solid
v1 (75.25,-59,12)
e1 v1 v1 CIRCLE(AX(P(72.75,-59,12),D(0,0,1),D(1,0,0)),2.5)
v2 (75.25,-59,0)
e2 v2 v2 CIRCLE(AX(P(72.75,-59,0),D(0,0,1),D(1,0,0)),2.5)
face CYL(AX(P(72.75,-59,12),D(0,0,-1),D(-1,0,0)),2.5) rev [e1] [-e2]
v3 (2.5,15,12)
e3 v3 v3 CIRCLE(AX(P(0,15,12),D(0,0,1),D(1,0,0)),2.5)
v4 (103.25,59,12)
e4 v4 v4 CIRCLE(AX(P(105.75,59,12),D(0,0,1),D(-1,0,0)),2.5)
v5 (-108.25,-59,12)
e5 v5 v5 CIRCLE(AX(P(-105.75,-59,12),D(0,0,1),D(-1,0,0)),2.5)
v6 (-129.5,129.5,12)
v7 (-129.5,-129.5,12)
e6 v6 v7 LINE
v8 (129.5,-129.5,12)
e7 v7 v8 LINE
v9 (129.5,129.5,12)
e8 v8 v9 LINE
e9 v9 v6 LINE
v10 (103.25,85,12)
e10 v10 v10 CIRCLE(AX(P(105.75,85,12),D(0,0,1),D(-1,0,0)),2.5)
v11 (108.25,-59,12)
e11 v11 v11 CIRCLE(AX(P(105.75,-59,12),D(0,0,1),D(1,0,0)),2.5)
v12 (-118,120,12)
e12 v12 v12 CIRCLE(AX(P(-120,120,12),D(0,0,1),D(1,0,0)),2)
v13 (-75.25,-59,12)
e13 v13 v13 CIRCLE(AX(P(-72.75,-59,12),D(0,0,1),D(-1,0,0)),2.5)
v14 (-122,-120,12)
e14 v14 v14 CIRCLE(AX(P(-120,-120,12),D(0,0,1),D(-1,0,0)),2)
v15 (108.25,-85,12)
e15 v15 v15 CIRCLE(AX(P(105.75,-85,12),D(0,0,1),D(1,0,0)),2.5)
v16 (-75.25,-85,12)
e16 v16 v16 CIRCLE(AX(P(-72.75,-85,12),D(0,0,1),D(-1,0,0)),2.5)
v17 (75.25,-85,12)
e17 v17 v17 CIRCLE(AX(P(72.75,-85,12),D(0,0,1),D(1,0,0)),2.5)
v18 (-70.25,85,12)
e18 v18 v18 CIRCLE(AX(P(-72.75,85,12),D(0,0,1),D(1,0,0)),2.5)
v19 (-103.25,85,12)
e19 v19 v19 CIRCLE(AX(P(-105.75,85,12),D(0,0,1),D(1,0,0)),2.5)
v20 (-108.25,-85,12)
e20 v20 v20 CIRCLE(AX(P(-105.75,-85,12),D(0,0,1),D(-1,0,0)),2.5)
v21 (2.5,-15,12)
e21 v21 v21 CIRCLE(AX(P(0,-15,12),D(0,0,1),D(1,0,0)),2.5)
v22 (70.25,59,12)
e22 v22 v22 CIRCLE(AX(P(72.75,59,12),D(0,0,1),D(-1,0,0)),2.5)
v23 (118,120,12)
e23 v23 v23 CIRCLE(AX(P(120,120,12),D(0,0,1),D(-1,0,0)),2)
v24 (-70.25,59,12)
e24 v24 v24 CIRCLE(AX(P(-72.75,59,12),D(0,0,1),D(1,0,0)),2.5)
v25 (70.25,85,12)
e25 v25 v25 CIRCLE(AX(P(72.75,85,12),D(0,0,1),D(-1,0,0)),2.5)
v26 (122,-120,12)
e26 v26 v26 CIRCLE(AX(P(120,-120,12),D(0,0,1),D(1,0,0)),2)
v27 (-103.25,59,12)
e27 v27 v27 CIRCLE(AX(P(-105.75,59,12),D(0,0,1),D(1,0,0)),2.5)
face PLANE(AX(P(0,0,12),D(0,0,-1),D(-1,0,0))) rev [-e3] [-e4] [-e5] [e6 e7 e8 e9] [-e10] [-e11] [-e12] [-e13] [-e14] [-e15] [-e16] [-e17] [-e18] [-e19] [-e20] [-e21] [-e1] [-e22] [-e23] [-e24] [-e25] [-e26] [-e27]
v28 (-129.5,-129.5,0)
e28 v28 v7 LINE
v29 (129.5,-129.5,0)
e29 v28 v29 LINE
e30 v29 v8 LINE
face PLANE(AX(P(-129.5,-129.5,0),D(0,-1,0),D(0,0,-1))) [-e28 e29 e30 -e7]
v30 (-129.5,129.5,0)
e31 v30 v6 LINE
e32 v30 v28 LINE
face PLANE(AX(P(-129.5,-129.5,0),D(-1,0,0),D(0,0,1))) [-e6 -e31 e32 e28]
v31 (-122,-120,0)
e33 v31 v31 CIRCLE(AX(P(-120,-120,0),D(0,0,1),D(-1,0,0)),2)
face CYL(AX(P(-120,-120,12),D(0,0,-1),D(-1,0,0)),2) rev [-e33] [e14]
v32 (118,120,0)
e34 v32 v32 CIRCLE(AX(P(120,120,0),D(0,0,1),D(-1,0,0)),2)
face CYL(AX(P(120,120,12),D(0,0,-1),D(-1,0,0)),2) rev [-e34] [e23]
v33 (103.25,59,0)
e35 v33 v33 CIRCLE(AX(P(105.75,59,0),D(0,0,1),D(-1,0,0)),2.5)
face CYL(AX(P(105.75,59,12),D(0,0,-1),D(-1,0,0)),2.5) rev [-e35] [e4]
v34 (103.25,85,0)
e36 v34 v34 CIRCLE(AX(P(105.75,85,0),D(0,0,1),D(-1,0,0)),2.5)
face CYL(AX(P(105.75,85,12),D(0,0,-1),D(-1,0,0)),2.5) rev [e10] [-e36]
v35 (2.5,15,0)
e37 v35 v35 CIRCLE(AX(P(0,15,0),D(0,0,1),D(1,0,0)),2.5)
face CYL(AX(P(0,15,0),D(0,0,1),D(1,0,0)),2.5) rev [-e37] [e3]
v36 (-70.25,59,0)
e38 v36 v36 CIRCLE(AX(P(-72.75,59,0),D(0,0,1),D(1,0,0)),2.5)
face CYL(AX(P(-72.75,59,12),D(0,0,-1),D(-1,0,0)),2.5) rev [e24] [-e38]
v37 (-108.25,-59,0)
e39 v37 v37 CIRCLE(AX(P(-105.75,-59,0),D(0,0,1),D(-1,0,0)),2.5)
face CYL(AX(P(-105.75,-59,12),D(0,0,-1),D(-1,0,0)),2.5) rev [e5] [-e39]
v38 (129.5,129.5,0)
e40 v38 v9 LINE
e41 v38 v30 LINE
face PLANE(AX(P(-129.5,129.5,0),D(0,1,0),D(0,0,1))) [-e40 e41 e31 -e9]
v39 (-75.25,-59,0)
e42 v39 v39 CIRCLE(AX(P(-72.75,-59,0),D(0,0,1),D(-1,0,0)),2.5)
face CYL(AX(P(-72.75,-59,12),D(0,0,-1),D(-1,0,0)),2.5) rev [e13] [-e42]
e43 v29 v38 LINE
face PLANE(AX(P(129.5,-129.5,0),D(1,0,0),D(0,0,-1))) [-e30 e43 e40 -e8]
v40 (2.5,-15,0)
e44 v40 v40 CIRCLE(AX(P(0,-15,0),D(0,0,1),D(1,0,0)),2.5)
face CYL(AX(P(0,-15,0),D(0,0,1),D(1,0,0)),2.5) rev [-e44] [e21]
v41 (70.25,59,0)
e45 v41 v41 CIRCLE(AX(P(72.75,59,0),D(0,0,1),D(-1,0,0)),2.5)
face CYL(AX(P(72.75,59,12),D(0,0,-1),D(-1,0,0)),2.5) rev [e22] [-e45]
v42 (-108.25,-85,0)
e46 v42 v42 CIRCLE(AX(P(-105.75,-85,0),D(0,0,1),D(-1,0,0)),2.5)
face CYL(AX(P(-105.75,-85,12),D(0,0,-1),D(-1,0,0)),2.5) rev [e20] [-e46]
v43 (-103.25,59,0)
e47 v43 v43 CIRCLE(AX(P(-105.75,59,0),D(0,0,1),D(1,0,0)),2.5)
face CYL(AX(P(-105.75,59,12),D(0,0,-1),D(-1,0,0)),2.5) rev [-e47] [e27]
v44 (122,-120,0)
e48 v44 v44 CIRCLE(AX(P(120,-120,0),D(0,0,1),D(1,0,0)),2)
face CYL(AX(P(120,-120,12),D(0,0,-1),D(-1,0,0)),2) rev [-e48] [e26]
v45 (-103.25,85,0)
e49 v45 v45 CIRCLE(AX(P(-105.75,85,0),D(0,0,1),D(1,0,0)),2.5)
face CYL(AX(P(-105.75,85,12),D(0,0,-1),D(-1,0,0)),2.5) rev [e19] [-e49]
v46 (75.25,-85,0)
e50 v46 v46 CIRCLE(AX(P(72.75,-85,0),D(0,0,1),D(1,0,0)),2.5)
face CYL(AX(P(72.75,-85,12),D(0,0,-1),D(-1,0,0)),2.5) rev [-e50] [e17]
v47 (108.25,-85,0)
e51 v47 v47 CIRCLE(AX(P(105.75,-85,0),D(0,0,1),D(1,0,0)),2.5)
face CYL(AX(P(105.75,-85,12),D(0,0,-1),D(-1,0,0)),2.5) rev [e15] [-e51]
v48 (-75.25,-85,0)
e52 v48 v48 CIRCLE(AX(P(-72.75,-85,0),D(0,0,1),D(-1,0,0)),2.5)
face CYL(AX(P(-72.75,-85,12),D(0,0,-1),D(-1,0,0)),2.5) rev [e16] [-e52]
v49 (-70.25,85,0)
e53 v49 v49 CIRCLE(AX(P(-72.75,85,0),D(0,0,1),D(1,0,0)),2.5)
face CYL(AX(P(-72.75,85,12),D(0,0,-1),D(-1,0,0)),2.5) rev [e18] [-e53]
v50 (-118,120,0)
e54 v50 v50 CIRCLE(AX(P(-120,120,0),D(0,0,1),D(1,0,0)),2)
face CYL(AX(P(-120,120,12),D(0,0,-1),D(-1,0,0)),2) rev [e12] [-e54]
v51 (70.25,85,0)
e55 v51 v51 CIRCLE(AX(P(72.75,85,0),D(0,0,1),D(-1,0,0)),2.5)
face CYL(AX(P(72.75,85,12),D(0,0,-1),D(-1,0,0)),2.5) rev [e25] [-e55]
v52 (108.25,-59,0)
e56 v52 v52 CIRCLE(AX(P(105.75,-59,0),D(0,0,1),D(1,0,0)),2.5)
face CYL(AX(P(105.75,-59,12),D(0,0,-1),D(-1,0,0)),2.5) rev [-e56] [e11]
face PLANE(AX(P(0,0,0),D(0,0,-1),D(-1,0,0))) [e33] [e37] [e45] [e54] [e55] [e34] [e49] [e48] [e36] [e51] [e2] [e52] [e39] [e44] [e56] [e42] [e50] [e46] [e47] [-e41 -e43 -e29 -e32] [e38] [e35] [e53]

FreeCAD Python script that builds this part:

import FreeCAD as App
import Part
import Sketcher
from FreeCAD import Vector
Q = App.Units.Quantity

doc = App.newDocument("Part")
body = doc.addObject("PartDesign::Body", "Body")

sketch1 = body.newObject("Sketcher::SketchObject", "Sketch")
sketch1.AttachmentSupport = (doc.getObject("XY_Plane"), [""])
sketch1.MapMode = "FlatFace"
sketch1.addGeometry(Part.LineSegment(Vector(-160, 160, 0), Vector(-160, -160, 0)), False)
sketch1.addGeometry(Part.LineSegment(Vector(-160, -160, 0), Vector(160, -160, 0)), False)
sketch1.addGeometry(Part.LineSegment(Vector(160, -160, 0), Vector(160, 160, 0)), False)
sketch1.addGeometry(Part.LineSegment(Vector(160, 160, 0), Vector(-160, 160, 0)), False)
sketch1.addGeometry(Part.Circle(Vector(-120, -120, 0), Vector(0, 0, 1), 2), False)
sketch1.addGeometry(Part.Circle(Vector(-105.8, -85, 0), Vector(0, 0, 1), 2.5), False)
sketch1.addGeometry(Part.Circle(Vector(-72.8, -85, 0), Vector(0, 0, 1), 2.5), False)
sketch1.addGeometry(Part.Circle(Vector(-105.8, -59, 0), Vector(0, 0, 1), 2.5), False)
sketch1.addGeometry(Part.Circle(Vector(-72.8, -59, 0), Vector(0, 0, 1), 2.5), False)
sketch1.addGeometry(Part.Circle(Vector(120, -120, 0), Vector(0, 0, 1), 2), False)
sketch1.addGeometry(Part.Circle(Vector(72.8, -85, 0), Vector(0, 0, 1), 2.5), False)
sketch1.addGeometry(Part.Circle(Vector(105.8, -85, 0), Vector(0, 0, 1), 2.5), False)
sketch1.addGeometry(Part.Circle(Vector(72.8, -59, 0), Vector(0, 0, 1), 2.5), False)
sketch1.addGeometry(Part.Circle(Vector(105.8, -59, 0), Vector(0, 0, 1), 2.5), False)
sketch1.addGeometry(Part.Circle(Vector(-105.8, 59, 0), Vector(0, 0, 1), 2.5), False)
sketch1.addGeometry(Part.Circle(Vector(-72.8, 59, 0), Vector(0, 0, 1), 2.5), False)
sketch1.addGeometry(Part.Circle(Vector(-105.8, 85, 0), Vector(0, 0, 1), 2.5), False)
sketch1.addGeometry(Part.Circle(Vector(-72.8, 85, 0), Vector(0, 0, 1), 2.5), False)
sketch1.addGeometry(Part.Circle(Vector(-120, 120, 0), Vector(0, 0, 1), 2), False)
sketch1.addGeometry(Part.Circle(Vector(72.8, 59, 0), Vector(0, 0, 1), 2.5), False)
sketch1.addGeometry(Part.Circle(Vector(105.8, 59, 0), Vector(0, 0, 1), 2.5), False)
sketch1.addGeometry(Part.Circle(Vector(72.8, 85, 0), Vector(0, 0, 1), 2.5), False)
sketch1.addGeometry(Part.Circle(Vector(105.8, 85, 0), Vector(0, 0, 1), 2.5), False)
sketch1.addGeometry(Part.Circle(Vector(120, 120, 0), Vector(0, 0, 1), 2), False)
sketch1.addConstraint(Sketcher.Constraint("Coincident", 0, 2, 1, 1))
sketch1.addConstraint(Sketcher.Constraint("Coincident", 1, 2, 2, 1))
sketch1.addConstraint(Sketcher.Constraint("Coincident", 2, 2, 3, 1))
sketch1.addConstraint(Sketcher.Constraint("Coincident", 3, 2, 0, 1))
sketch1.addConstraint(Sketcher.Constraint("Vertical", 0))
sketch1.addConstraint(Sketcher.Constraint("Horizontal", 1))
sketch1.addConstraint(Sketcher.Constraint("Vertical", 2))
sketch1.addConstraint(Sketcher.Constraint("Horizontal", 3))
sketch1.addConstraint(Sketcher.Constraint("Equal", 5, 6))
sketch1.addConstraint(Sketcher.Constraint("Equal", 6, 7))
sketch1.addConstraint(Sketcher.Constraint("Equal", 7, 8))
sketch1.addConstraint(Sketcher.Constraint("Equal", 4, 9))
sketch1.addConstraint(Sketcher.Constraint("Equal", 8, 10))
sketch1.addConstraint(Sketcher.Constraint("Equal", 10, 11))
sketch1.addConstraint(Sketcher.Constraint("Equal", 11, 12))
sketch1.addConstraint(Sketcher.Constraint("Equal", 12, 13))
sketch1.addConstraint(Sketcher.Constraint("Equal", 13, 14))
sketch1.addConstraint(Sketcher.Constraint("Equal", 14, 15))
sketch1.addConstraint(Sketcher.Constraint("Equal", 15, 16))
sketch1.addConstraint(Sketcher.Constraint("Equal", 16, 17))
sketch1.addConstraint(Sketcher.Constraint("Equal", 9, 18))
sketch1.addConstraint(Sketcher.Constraint("Equal", 17, 19))
sketch1.addConstraint(Sketcher.Constraint("Equal", 19, 20))
sketch1.addConstraint(Sketcher.Constraint("Equal", 20, 21))
sketch1.addConstraint(Sketcher.Constraint("Equal", 21, 22))
sketch1.addConstraint(Sketcher.Constraint("Equal", 18, 23))
sketch1.addConstraint(Sketcher.Constraint("Symmetric", 13, 3, 14, 3, -1, 1))
sketch1.addConstraint(Sketcher.Constraint("Symmetric", 12, 3, 15, 3, -1, 1))
sketch1.addConstraint(Sketcher.Constraint("Symmetric", 11, 3, 16, 3, -1, 1))
sketch1.addConstraint(Sketcher.Constraint("Symmetric", 10, 3, 17, 3, -1, 1))
sketch1.addConstraint(Sketcher.Constraint("Symmetric", 9, 3, 18, 3, -1, 1))
sketch1.addConstraint(Sketcher.Constraint("Symmetric", 8, 3, 19, 3, -1, 1))
sketch1.addConstraint(Sketcher.Constraint("Symmetric", 7, 3, 20, 3, -1, 1))
sketch1.addConstraint(Sketcher.Constraint("Symmetric", 6, 3, 21, 3, -1, 1))
sketch1.addConstraint(Sketcher.Constraint("Symmetric", 5, 3, 22, 3, -1, 1))
sketch1.addConstraint(Sketcher.Constraint("Symmetric", 4, 3, 23, 3, -1, 1))
sketch1.addConstraint(Sketcher.Constraint("Symmetric", 0, 2, 2, 2, -1, 1))
sketch1.addConstraint(Sketcher.Constraint("Symmetric", 4, 3, 9, 3, -2))
sketch1.addConstraint(Sketcher.Constraint("Symmetric", 6, 3, 10, 3, -2))
sketch1.addConstraint(Sketcher.Constraint("Symmetric", 5, 3, 11, 3, -2))
sketch1.addConstraint(Sketcher.Constraint("Symmetric", 8, 3, 12, 3, -2))
sketch1.addConstraint(Sketcher.Constraint("Symmetric", 7, 3, 13, 3, -2))
sketch1.addConstraint(Sketcher.Constraint("Horizontal", 5, 3, 6, 3))
sketch1.addConstraint(Sketcher.Constraint("Horizontal", 7, 3, 8, 3))
sketch1.addConstraint(Sketcher.Constraint("Vertical", 5, 3, 7, 3))
sketch1.addConstraint(Sketcher.Constraint("Vertical", 6, 3, 8, 3))
sketch1.addConstraint(Sketcher.Constraint("Equal", 3, 0))
sketch1.addConstraint(Sketcher.Constraint("Diameter", 4, Q("4 mm")))
sketch1.addConstraint(Sketcher.Constraint("Diameter", 5, Q("5 mm")))
sketch1.addConstraint(Sketcher.Constraint("DistanceX", 1, 1, 1, 2, Q("320 mm")))
sketch1.addConstraint(Sketcher.Constraint("DistanceX", 4, 3, -1, 1, Q("120 mm")))
sketch1.addConstraint(Sketcher.Constraint("DistanceY", 4, 3, -1, 1, Q("120 mm")))
sketch1.addConstraint(Sketcher.Constraint("DistanceY", 5, 3, -1, 1, Q("85 mm")))
sketch1.addConstraint(Sketcher.Constraint("DistanceY", 7, 3, -1, 1, Q("59 mm")))
sketch1.addConstraint(Sketcher.Constraint("DistanceX", 5, 3, 6, 3, Q("33 mm")))
sketch1.addConstraint(Sketcher.Constraint("DistanceX", 6, 3, 10, 3, Q("145.5 mm")))
pad1 = body.newObject("PartDesign::Pad", "Pad")
pad1.Profile = sketch1
pad1.Length = 12

sketch2 = body.newObject("Sketcher::SketchObject", "Sketch001")
sketch2.AttachmentSupport = (doc.getObject("XY_Plane"), [""])
sketch2.MapMode = "FlatFace"
sketch2.AttachmentOffset = App.Placement(Vector(0, 0, 12), App.Rotation())
sketch2.addGeometry(Part.LineSegment(Vector(-160, 160, 0), Vector(-160, -160, 0)), False)
sketch2.addGeometry(Part.LineSegment(Vector(-160, -160, 0), Vector(160, -160, 0)), False)
sketch2.addGeometry(Part.LineSegment(Vector(160, -160, 0), Vector(160, 160, 0)), False)
sketch2.addGeometry(Part.LineSegment(Vector(160, 160, 0), Vector(-160, 160, 0)), False)
sketch2.addGeometry(Part.LineSegment(Vector(155, -155, 0), Vector(-155, -155, 0)), False)
sketch2.addGeometry(Part.LineSegment(Vector(-155, -155, 0), Vector(-155, 155, 0)), False)
sketch2.addGeometry(Part.LineSegment(Vector(-155, 155, 0), Vector(155, 155, 0)), False)
sketch2.addGeometry(Part.LineSegment(Vector(155, 155, 0), Vector(155, -155, 0)), False)
sketch2.addConstraint(Sketcher.Constraint("Coincident", 0, 2, 1, 1))
sketch2.addConstraint(Sketcher.Constraint("Coincident", 1, 2, 2, 1))
sketch2.addConstraint(Sketcher.Constraint("Coincident", 2, 2, 3, 1))
sketch2.addConstraint(Sketcher.Constraint("Coincident", 3, 2, 0, 1))
sketch2.addConstraint(Sketcher.Constraint("Coincident", 4, 2, 5, 1))
sketch2.addConstraint(Sketcher.Constraint("Coincident", 5, 2, 6, 1))
sketch2.addConstraint(Sketcher.Constraint("Coincident", 6, 2, 7, 1))
sketch2.addConstraint(Sketcher.Constraint("Coincident", 7, 2, 4, 1))
sketch2.addConstraint(Sketcher.Constraint("Vertical", 0))
sketch2.addConstraint(Sketcher.Constraint("Horizontal", 1))
sketch2.addConstraint(Sketcher.Constraint("Vertical", 2))
sketch2.addConstraint(Sketcher.Constraint("Horizontal", 3))
sketch2.addConstraint(Sketcher.Constraint("Horizontal", 4))
sketch2.addConstraint(Sketcher.Constraint("Vertical", 5))
sketch2.addConstraint(Sketcher.Constraint("Horizontal", 6))
sketch2.addConstraint(Sketcher.Constraint("Vertical", 7))
sketch2.addConstraint(Sketcher.Constraint("Symmetric", 0, 2, 2, 2, -1, 1))
sketch2.addConstraint(Sketcher.Constraint("Symmetric", 4, 2, 6, 2, -1, 1))
sketch2.addConstraint(Sketcher.Constraint("Equal", 3, 0))
sketch2.addConstraint(Sketcher.Constraint("Equal", 6, 5))
sketch2.addConstraint(Sketcher.Constraint("DistanceX", 1, 1, 1, 2, Q("320 mm")))
sketch2.addConstraint(Sketcher.Constraint("DistanceX", 4, 2, 4, 1, Q("310 mm")))
pocket1 = body.newObject("PartDesign::Pocket", "Pocket")
pocket1.Profile = sketch2
pocket1.Length = 10

sketch3 = body.newObject("Sketcher::SketchObject", "Sketch002")
sketch3.AttachmentSupport = (doc.getObject("XY_Plane"), [""])
sketch3.MapMode = "FlatFace"
sketch3.AttachmentOffset = App.Placement(Vector(0, 0, 12), App.Rotation())
sketch3.addGeometry(Part.LineSegment(Vector(-206, 206, 0), Vector(-206, -206, 0)), False)
sketch3.addGeometry(Part.LineSegment(Vector(-206, -206, 0), Vector(206, -206, 0)), False)
sketch3.addGeometry(Part.LineSegment(Vector(206, -206, 0), Vector(206, 206, 0)), False)
sketch3.addGeometry(Part.LineSegment(Vector(206, 206, 0), Vector(-206, 206, 0)), False)
sketch3.addGeometry(Part.LineSegment(Vector(130, -130, 0), Vector(-130, -130, 0)), False)
sketch3.addGeometry(Part.LineSegment(Vector(-130, -130, 0), Vector(-130, 130, 0)), False)
sketch3.addGeometry(Part.LineSegment(Vector(-130, 130, 0), Vector(130, 130, 0)), False)
sketch3.addGeometry(Part.LineSegment(Vector(130, 130, 0), Vector(130, -130, 0)), False)
sketch3.addConstraint(Sketcher.Constraint("Coincident", 0, 2, 1, 1))
sketch3.addConstraint(Sketcher.Constraint("Coincident", 1, 2, 2, 1))
sketch3.addConstraint(Sketcher.Constraint("Coincident", 2, 2, 3, 1))
sketch3.addConstraint(Sketcher.Constraint("Coincident", 3, 2, 0, 1))
sketch3.addConstraint(Sketcher.Constraint("Coincident", 4, 2, 5, 1))
sketch3.addConstraint(Sketcher.Constraint("Coincident", 5, 2, 6, 1))
sketch3.addConstraint(Sketcher.Constraint("Coincident", 6, 2, 7, 1))
sketch3.addConstraint(Sketcher.Constraint("Coincident", 7, 2, 4, 1))
sketch3.addConstraint(Sketcher.Constraint("Vertical", 0))
sketch3.addConstraint(Sketcher.Constraint("Horizontal", 1))
sketch3.addConstraint(Sketcher.Constraint("Vertical", 2))
sketch3.addConstraint(Sketcher.Constraint("Horizontal", 3))
sketch3.addConstraint(Sketcher.Constraint("Horizontal", 4))
sketch3.addConstraint(Sketcher.Constraint("Vertical", 5))
sketch3.addConstraint(Sketcher.Constraint("Horizontal", 6))
sketch3.addConstraint(Sketcher.Constraint("Vertical", 7))
sketch3.addConstraint(Sketcher.Constraint("Symmetric", 0, 2, 2, 2, -1, 1))
sketch3.addConstraint(Sketcher.Constraint("Symmetric", 4, 2, 6, 2, -1, 1))
sketch3.addConstraint(Sketcher.Constraint("Equal", 3, 0))
sketch3.addConstraint(Sketcher.Constraint("Equal", 6, 5))
sketch3.addConstraint(Sketcher.Constraint("DistanceX", 4, 2, 4, 1, Q("259 mm")))
sketch3.addConstraint(Sketcher.Constraint("DistanceX", 1, 1, 1, 2, Q("412.542 mm")))
pocket2 = body.newObject("PartDesign::Pocket", "Pocket001")
pocket2.Profile = sketch3
pocket2.Type = "ThroughAll"

sketch4 = body.newObject("Sketcher::SketchObject", "Sketch003")
sketch4.AttachmentSupport = (doc.getObject("XY_Plane"), [""])
sketch4.MapMode = "FlatFace"
sketch4.AttachmentOffset = App.Placement(Vector(0, 0, 12), App.Rotation())
sketch4.addGeometry(Part.Circle(Vector(0, 15, 0), Vector(0, 0, 1), 2.5), False)
sketch4.addGeometry(Part.Circle(Vector(0, -15, 0), Vector(0, 0, 1), 2.5), False)
sketch4.addConstraint(Sketcher.Constraint("Equal", 0, 1))
sketch4.addConstraint(Sketcher.Constraint("Symmetric", 0, 3, 1, 3, -1, 1))
sketch4.addConstraint(Sketcher.Constraint("PointOnObject", 0, 3, -2))
sketch4.addConstraint(Sketcher.Constraint("Diameter", 0, Q("5 mm")))
sketch4.addConstraint(Sketcher.Constraint("DistanceY", -1, 1, 0, 3, Q("15 mm")))
pocket3 = body.newObject("PartDesign::Pocket", "Pocket002")
pocket3.Profile = sketch4
pocket3.Type = "ThroughAll"

doc.recompute()
